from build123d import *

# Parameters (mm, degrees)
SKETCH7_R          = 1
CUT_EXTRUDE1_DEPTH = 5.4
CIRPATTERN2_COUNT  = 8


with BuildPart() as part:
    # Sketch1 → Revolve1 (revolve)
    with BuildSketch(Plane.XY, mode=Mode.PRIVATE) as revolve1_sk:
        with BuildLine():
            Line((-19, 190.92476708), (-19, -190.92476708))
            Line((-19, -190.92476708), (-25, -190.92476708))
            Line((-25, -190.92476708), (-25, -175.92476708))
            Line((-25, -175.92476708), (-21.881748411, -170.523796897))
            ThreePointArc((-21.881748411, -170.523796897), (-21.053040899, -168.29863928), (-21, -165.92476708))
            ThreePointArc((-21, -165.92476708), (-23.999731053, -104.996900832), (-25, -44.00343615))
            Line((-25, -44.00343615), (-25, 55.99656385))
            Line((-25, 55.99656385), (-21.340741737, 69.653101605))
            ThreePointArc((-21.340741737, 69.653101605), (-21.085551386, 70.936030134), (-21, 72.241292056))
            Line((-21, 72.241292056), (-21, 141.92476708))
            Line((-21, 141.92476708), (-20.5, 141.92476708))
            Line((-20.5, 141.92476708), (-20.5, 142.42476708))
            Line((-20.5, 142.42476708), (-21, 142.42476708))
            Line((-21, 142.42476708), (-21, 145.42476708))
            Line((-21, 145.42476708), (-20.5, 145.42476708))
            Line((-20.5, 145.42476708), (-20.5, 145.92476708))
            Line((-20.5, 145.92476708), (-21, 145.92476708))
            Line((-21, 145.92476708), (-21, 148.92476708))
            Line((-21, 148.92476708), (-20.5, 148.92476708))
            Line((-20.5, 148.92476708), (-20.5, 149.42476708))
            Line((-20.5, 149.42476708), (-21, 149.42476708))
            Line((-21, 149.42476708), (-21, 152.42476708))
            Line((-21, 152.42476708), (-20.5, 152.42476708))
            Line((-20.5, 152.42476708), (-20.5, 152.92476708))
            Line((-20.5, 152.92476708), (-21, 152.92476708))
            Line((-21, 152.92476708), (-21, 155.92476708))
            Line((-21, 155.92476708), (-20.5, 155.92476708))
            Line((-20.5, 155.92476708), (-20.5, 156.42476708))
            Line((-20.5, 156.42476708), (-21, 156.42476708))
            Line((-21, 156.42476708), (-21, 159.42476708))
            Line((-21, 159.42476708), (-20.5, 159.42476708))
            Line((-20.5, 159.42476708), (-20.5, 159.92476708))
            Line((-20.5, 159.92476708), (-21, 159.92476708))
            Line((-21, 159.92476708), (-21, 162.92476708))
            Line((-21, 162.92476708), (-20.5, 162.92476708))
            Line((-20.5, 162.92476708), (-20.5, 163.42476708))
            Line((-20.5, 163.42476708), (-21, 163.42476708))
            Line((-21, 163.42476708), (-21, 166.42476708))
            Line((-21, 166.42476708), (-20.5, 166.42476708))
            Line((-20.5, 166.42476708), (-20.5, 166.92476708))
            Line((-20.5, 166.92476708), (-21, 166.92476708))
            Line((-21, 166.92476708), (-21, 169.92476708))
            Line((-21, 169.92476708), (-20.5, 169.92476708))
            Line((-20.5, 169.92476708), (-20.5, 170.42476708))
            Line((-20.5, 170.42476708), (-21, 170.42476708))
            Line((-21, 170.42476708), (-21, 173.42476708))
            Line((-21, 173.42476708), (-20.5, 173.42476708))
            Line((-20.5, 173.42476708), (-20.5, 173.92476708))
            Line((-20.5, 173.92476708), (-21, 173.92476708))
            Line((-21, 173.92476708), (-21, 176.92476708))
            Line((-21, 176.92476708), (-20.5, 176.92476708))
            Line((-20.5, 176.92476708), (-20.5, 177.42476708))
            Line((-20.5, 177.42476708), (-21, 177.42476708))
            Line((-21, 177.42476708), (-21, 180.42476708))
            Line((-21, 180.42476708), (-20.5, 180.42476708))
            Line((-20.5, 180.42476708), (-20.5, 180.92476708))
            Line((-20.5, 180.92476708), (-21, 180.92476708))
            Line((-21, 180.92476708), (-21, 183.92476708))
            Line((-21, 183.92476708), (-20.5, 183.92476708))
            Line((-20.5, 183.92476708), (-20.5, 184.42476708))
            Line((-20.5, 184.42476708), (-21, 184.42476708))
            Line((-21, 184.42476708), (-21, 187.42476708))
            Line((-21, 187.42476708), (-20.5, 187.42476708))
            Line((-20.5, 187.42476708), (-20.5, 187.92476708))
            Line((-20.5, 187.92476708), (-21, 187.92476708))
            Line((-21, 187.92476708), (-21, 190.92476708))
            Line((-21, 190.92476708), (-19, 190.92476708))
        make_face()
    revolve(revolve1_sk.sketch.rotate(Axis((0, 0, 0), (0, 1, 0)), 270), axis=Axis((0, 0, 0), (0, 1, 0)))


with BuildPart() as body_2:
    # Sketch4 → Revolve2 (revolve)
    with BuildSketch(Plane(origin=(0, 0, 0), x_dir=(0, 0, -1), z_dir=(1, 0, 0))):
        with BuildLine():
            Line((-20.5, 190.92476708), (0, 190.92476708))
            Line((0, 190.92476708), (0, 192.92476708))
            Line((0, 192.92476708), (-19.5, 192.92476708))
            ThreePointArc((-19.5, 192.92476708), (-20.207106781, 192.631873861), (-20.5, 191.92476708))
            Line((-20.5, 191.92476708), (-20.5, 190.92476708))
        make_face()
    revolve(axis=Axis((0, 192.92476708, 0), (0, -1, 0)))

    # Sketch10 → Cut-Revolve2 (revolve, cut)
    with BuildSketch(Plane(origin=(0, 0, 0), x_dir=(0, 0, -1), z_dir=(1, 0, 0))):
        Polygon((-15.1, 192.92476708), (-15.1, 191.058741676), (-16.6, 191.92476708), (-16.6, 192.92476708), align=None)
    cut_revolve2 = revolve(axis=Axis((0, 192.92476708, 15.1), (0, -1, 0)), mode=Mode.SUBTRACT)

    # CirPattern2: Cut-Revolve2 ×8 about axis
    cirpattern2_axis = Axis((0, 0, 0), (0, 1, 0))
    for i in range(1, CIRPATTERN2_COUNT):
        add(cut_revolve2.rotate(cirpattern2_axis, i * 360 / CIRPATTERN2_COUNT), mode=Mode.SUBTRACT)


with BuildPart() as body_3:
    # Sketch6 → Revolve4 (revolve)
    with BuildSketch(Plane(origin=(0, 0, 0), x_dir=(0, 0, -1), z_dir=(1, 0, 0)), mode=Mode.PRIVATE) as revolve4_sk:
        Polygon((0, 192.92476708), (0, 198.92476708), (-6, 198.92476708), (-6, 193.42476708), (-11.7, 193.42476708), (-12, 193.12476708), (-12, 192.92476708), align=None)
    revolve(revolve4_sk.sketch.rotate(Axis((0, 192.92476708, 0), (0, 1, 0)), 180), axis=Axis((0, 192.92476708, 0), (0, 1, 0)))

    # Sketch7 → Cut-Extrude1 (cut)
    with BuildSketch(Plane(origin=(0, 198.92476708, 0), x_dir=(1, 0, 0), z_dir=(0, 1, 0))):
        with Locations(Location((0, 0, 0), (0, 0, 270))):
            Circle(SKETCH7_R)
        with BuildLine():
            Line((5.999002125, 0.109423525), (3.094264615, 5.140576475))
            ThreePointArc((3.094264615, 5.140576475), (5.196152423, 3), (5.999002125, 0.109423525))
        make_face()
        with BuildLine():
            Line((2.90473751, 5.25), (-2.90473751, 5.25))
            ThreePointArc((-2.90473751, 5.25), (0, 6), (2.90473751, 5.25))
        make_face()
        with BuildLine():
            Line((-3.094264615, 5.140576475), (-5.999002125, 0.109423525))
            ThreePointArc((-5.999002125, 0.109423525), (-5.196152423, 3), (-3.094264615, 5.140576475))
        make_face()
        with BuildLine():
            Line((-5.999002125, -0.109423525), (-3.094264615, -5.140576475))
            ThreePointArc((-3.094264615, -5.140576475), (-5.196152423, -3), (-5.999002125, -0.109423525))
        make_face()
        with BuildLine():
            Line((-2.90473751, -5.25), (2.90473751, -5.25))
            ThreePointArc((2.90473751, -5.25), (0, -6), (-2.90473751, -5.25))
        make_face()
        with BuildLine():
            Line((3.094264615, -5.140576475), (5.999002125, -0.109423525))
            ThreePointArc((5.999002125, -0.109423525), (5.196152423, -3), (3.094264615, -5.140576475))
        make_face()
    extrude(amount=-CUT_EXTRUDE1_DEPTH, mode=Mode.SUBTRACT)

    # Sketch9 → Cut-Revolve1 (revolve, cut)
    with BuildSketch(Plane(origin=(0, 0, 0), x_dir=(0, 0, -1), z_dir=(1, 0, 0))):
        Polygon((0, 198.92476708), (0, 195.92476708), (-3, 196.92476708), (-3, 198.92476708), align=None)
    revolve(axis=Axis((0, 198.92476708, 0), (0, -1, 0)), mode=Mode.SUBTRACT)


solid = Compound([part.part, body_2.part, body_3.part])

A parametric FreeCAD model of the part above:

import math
import FreeCAD as App
import Part
import Sketcher
Q = App.Units.Quantity


def add_polygon(sketch, points):
    """Adds a closed chain of lines whose ends are joined by coincident constraints."""
    first, n = sketch.GeometryCount, len(points)
    for a, b in zip(points, points[1:] + points[:1]):
        sketch.addGeometry(Part.LineSegment(App.Vector(*a, 0), App.Vector(*b, 0)), False)
    for i in range(n):
        sketch.addConstraint(Sketcher.Constraint("Coincident", first + i, 2, first + (i + 1) % n, 1))

doc = App.newDocument("Part")
body = doc.addObject("PartDesign::Body", "Body")

sketch1 = body.newObject("Sketcher::SketchObject", "Sketch")
sketch1.AttachmentSupport = (doc.getObject("XY_Plane"), [""])
sketch1.MapMode = "FlatFace"
sketch1.addGeometry([
    Part.LineSegment(App.Vector(-19, -190.9, 0), App.Vector(-19, 190.9, 0)),
    Part.LineSegment(App.Vector(-19, 190.9, 0), App.Vector(-21, 190.9, 0)),
    Part.LineSegment(App.Vector(-21, 190.9, 0), App.Vector(-21, 187.9, 0)),
    Part.LineSegment(App.Vector(-21, 187.9, 0), App.Vector(-20.5, 187.9, 0)),
    Part.LineSegment(App.Vector(-20.5, 187.9, 0), App.Vector(-20.5, 187.4, 0)),
    Part.LineSegment(App.Vector(-20.5, 187.4, 0), App.Vector(-21, 187.4, 0)),
    Part.LineSegment(App.Vector(-21, 187.4, 0), App.Vector(-21, 184.4, 0)),
    Part.LineSegment(App.Vector(-21, 184.4, 0), App.Vector(-20.5, 184.4, 0)),
    Part.LineSegment(App.Vector(-20.5, 184.4, 0), App.Vector(-20.5, 183.9, 0)),
    Part.LineSegment(App.Vector(-20.5, 183.9, 0), App.Vector(-21, 183.9, 0)),
    Part.LineSegment(App.Vector(-21, 183.9, 0), App.Vector(-21, 180.9, 0)),
    Part.LineSegment(App.Vector(-21, 180.9, 0), App.Vector(-20.5, 180.9, 0)),
    Part.LineSegment(App.Vector(-20.5, 180.9, 0), App.Vector(-20.5, 180.4, 0)),
    Part.LineSegment(App.Vector(-20.5, 180.4, 0), App.Vector(-21, 180.4, 0)),
    Part.LineSegment(App.Vector(-21, 180.4, 0), App.Vector(-21, 177.4, 0)),
    Part.LineSegment(App.Vector(-21, 177.4, 0), App.Vector(-20.5, 177.4, 0)),
    Part.LineSegment(App.Vector(-20.5, 177.4, 0), App.Vector(-20.5, 176.9, 0)),
    Part.LineSegment(App.Vector(-20.5, 176.9, 0), App.Vector(-21, 176.9, 0)),
    Part.LineSegment(App.Vector(-21, 176.9, 0), App.Vector(-21, 173.9, 0)),
    Part.LineSegment(App.Vector(-21, 173.9, 0), App.Vector(-20.5, 173.9, 0)),
    Part.LineSegment(App.Vector(-20.5, 173.9, 0), App.Vector(-20.5, 173.4, 0)),
    Part.LineSegment(App.Vector(-20.5, 173.4, 0), App.Vector(-21, 173.4, 0)),
    Part.LineSegment(App.Vector(-21, 173.4, 0), App.Vector(-21, 170.4, 0)),
    Part.LineSegment(App.Vector(-21, 170.4, 0), App.Vector(-20.5, 170.4, 0)),
    Part.LineSegment(App.Vector(-20.5, 170.4, 0), App.Vector(-20.5, 169.9, 0)),
    Part.LineSegment(App.Vector(-20.5, 169.9, 0), App.Vector(-21, 169.9, 0)),
    Part.LineSegment(App.Vector(-21, 169.9, 0), App.Vector(-21, 166.9, 0)),
    Part.LineSegment(App.Vector(-21, 166.9, 0), App.Vector(-20.5, 166.9, 0)),
    Part.LineSegment(App.Vector(-20.5, 166.9, 0), App.Vector(-20.5, 166.4, 0)),
    Part.LineSegment(App.Vector(-20.5, 166.4, 0), App.Vector(-21, 166.4, 0)),
    Part.LineSegment(App.Vector(-21, 166.4, 0), App.Vector(-21, 163.4, 0)),
    Part.LineSegment(App.Vector(-21, 163.4, 0), App.Vector(-20.5, 163.4, 0)),
    Part.LineSegment(App.Vector(-20.5, 163.4, 0), App.Vector(-20.5, 162.9, 0)),
    Part.LineSegment(App.Vector(-20.5, 162.9, 0), App.Vector(-21, 162.9, 0)),
    Part.LineSegment(App.Vector(-21, 162.9, 0), App.Vector(-21, 159.9, 0)),
    Part.LineSegment(App.Vector(-21, 159.9, 0), App.Vector(-20.5, 159.9, 0)),
    Part.LineSegment(App.Vector(-20.5, 159.9, 0), App.Vector(-20.5, 159.4, 0)),
    Part.LineSegment(App.Vector(-20.5, 159.4, 0), App.Vector(-21, 159.4, 0)),
    Part.LineSegment(App.Vector(-21, 159.4, 0), App.Vector(-21, 156.4, 0)),
    Part.LineSegment(App.Vector(-21, 156.4, 0), App.Vector(-20.5, 156.4, 0)),
    Part.LineSegment(App.Vector(-20.5, 156.4, 0), App.Vector(-20.5, 155.9, 0)),
    Part.LineSegment(App.Vector(-20.5, 155.9, 0), App.Vector(-21, 155.9, 0)),
    Part.LineSegment(App.Vector(-21, 155.9, 0), App.Vector(-21, 152.9, 0)),
    Part.LineSegment(App.Vector(-21, 152.9, 0), App.Vector(-20.5, 152.9, 0)),
    Part.LineSegment(App.Vector(-20.5, 152.9, 0), App.Vector(-20.5, 152.4, 0)),
    Part.LineSegment(App.Vector(-20.5, 152.4, 0), App.Vector(-21, 152.4, 0)),
    Part.LineSegment(App.Vector(-21, 152.4, 0), App.Vector(-21, 149.4, 0)),
    Part.LineSegment(App.Vector(-21, 149.4, 0), App.Vector(-20.5, 149.4, 0)),
    Part.LineSegment(App.Vector(-20.5, 149.4, 0), App.Vector(-20.5, 148.9, 0)),
    Part.LineSegment(App.Vector(-20.5, 148.9, 0), App.Vector(-21, 148.9, 0)),
    Part.LineSegment(App.Vector(-21, 148.9, 0), App.Vector(-21, 145.9, 0)),
    Part.LineSegment(App.Vector(-21, 145.9, 0), App.Vector(-20.5, 145.9, 0)),
    Part.LineSegment(App.Vector(-20.5, 145.9, 0), App.Vector(-20.5, 145.4, 0)),
    Part.LineSegment(App.Vector(-20.5, 145.4, 0), App.Vector(-21, 145.4, 0)),
    Part.LineSegment(App.Vector(-21, 145.4, 0), App.Vector(-21, 142.4, 0)),
    Part.LineSegment(App.Vector(-21, 142.4, 0), App.Vector(-20.5, 142.4, 0)),
    Part.LineSegment(App.Vector(-20.5, 142.4, 0), App.Vector(-20.5, 141.9, 0)),
    Part.LineSegment(App.Vector(-20.5, 141.9, 0), App.Vector(-21, 141.9, 0)),
    Part.LineSegment(App.Vector(-21, 141.9, 0), App.Vector(-21, 72.2, 0)),
    Part.ArcOfCircle(Part.Circle(App.Vector(-31, 72.2, 0), App.Vector(0, 0, 1), 10), math.radians(-15), math.radians(0)),
    Part.LineSegment(App.Vector(-21.3, 69.7, 0), App.Vector(-25, 56, 0)),
    Part.LineSegment(App.Vector(-25, 56, 0), App.Vector(-25, -44, 0)),
    Part.ArcOfCircle(Part.Circle(App.Vector(1835.1, -44, 0), App.Vector(0, 0, 1), 1860.1), math.radians(180), math.radians(183.76)),
    Part.ArcOfCircle(Part.Circle(App.Vector(-28.1, -167, 0), App.Vector(0, 0, 1), 7.1), math.radians(-30), math.radians(8)),
    Part.LineSegment(App.Vector(-21.9, -170.5, 0), App.Vector(-25, -175.9, 0)),
    Part.LineSegment(App.Vector(-25, -175.9, 0), App.Vector(-25, -190.9, 0)),
    Part.LineSegment(App.Vector(-25, -190.9, 0), App.Vector(-19, -190.9, 0)),
], False)
sketch1.addConstraint([
    Sketcher.Constraint("Coincident", 0, 2, 1, 1),
    Sketcher.Constraint("Coincident", 1, 2, 2, 1),
    Sketcher.Constraint("Coincident", 2, 2, 3, 1),
    Sketcher.Constraint("Coincident", 3, 2, 4, 1),
    Sketcher.Constraint("Coincident", 4, 2, 5, 1),
    Sketcher.Constraint("Coincident", 5, 2, 6, 1),
    Sketcher.Constraint("Coincident", 6, 2, 7, 1),
    Sketcher.Constraint("Coincident", 7, 2, 8, 1),
    Sketcher.Constraint("Coincident", 8, 2, 9, 1),
    Sketcher.Constraint("Coincident", 9, 2, 10, 1),
    Sketcher.Constraint("Coincident", 10, 2, 11, 1),
    Sketcher.Constraint("Coincident", 11, 2, 12, 1),
    Sketcher.Constraint("Coincident", 12, 2, 13, 1),
    Sketcher.Constraint("Coincident", 13, 2, 14, 1),
    Sketcher.Constraint("Coincident", 14, 2, 15, 1),
    Sketcher.Constraint("Coincident", 15, 2, 16, 1),
    Sketcher.Constraint("Coincident", 16, 2, 17, 1),
    Sketcher.Constraint("Coincident", 17, 2, 18, 1),
    Sketcher.Constraint("Coincident", 18, 2, 19, 1),
    Sketcher.Constraint("Coincident", 19, 2, 20, 1),
    Sketcher.Constraint("Coincident", 20, 2, 21, 1),
    Sketcher.Constraint("Coincident", 21, 2, 22, 1),
    Sketcher.Constraint("Coincident", 22, 2, 23, 1),
    Sketcher.Constraint("Coincident", 23, 2, 24, 1),
    Sketcher.Constraint("Coincident", 24, 2, 25, 1),
    Sketcher.Constraint("Coincident", 25, 2, 26, 1),
    Sketcher.Constraint("Coincident", 26, 2, 27, 1),
    Sketcher.Constraint("Coincident", 27, 2, 28, 1),
    Sketcher.Constraint("Coincident", 28, 2, 29, 1),
    Sketcher.Constraint("Coincident", 29, 2, 30, 1),
    Sketcher.Constraint("Coincident", 30, 2, 31, 1),
    Sketcher.Constraint("Coincident", 31, 2, 32, 1),
    Sketcher.Constraint("Coincident", 32, 2, 33, 1),
    Sketcher.Constraint("Coincident", 33, 2, 34, 1),
    Sketcher.Constraint("Coincident", 34, 2, 35, 1),
    Sketcher.Constraint("Coincident", 35, 2, 36, 1),
    Sketcher.Constraint("Coincident", 36, 2, 37, 1),
    Sketcher.Constraint("Coincident", 37, 2, 38, 1),
    Sketcher.Constraint("Coincident", 38, 2, 39, 1),
    Sketcher.Constraint("Coincident", 39, 2, 40, 1),
    Sketcher.Constraint("Coincident", 40, 2, 41, 1),
    Sketcher.Constraint("Coincident", 41, 2, 42, 1),
    Sketcher.Constraint("Coincident", 42, 2, 43, 1),
    Sketcher.Constraint("Coincident", 43, 2, 44, 1),
    Sketcher.Constraint("Coincident", 44, 2, 45, 1),
    Sketcher.Constraint("Coincident", 45, 2, 46, 1),
    Sketcher.Constraint("Coincident", 46, 2, 47, 1),
    Sketcher.Constraint("Coincident", 47, 2, 48, 1),
    Sketcher.Constraint("Coincident", 48, 2, 49, 1),
    Sketcher.Constraint("Coincident", 49, 2, 50, 1),
    Sketcher.Constraint("Coincident", 50, 2, 51, 1),
    Sketcher.Constraint("Coincident", 51, 2, 52, 1),
    Sketcher.Constraint("Coincident", 52, 2, 53, 1),
    Sketcher.Constraint("Coincident", 53, 2, 54, 1),
    Sketcher.Constraint("Coincident", 54, 2, 55, 1),
    Sketcher.Constraint("Coincident", 55, 2, 56, 1),
    Sketcher.Constraint("Coincident", 56, 2, 57, 1),
    Sketcher.Constraint("Coincident", 57, 2, 58, 1),
    Sketcher.Constraint("Tangent", 58, 2, 59, 2),
    Sketcher.Constraint("Tangent", 59, 1, 60, 1),
    Sketcher.Constraint("Coincident", 60, 2, 61, 1),
    Sketcher.Constraint("Tangent", 61, 2, 62, 1),
    Sketcher.Constraint("Coincident", 62, 2, 63, 2),
    Sketcher.Constraint("Tangent", 63, 1, 64, 1),
    Sketcher.Constraint("Coincident", 64, 2, 65, 1),
    Sketcher.Constraint("Coincident", 65, 2, 66, 1),
    Sketcher.Constraint("Coincident", 66, 2, 0, 1),
    Sketcher.Constraint("Vertical", 0),
    Sketcher.Constraint("Horizontal", 1),
    Sketcher.Constraint("Vertical", 2),
    Sketcher.Constraint("Horizontal", 3),
    Sketcher.Constraint("Vertical", 4),
    Sketcher.Constraint("Horizontal", 5),
    Sketcher.Constraint("Vertical", 6),
    Sketcher.Constraint("Horizontal", 7),
    Sketcher.Constraint("Vertical", 8),
    Sketcher.Constraint("Horizontal", 9),
    Sketcher.Constraint("Vertical", 10),
    Sketcher.Constraint("Horizontal", 11),
    Sketcher.Constraint("Vertical", 12),
    Sketcher.Constraint("Horizontal", 13),
    Sketcher.Constraint("Vertical", 14),
    Sketcher.Constraint("Horizontal", 15),
    Sketcher.Constraint("Vertical", 16),
    Sketcher.Constraint("Horizontal", 17),
    Sketcher.Constraint("Vertical", 18),
    Sketcher.Constraint("Horizontal", 19),
    Sketcher.Constraint("Vertical", 20),
    Sketcher.Constraint("Horizontal", 21),
    Sketcher.Constraint("Vertical", 22),
    Sketcher.Constraint("Horizontal", 23),
    Sketcher.Constraint("Vertical", 24),
    Sketcher.Constraint("Horizontal", 25),
    Sketcher.Constraint("Vertical", 26),
    Sketcher.Constraint("Horizontal", 27),
    Sketcher.Constraint("Vertical", 28),
    Sketcher.Constraint("Horizontal", 29),
    Sketcher.Constraint("Vertical", 30),
    Sketcher.Constraint("Horizontal", 31),
    Sketcher.Constraint("Vertical", 32),
    Sketcher.Constraint("Horizontal", 33),
    Sketcher.Constraint("Vertical", 34),
    Sketcher.Constraint("Horizontal", 35),
    Sketcher.Constraint("Vertical", 36),
    Sketcher.Constraint("Horizontal", 37),
    Sketcher.Constraint("Vertical", 38),
    Sketcher.Constraint("Horizontal", 39),
    Sketcher.Constraint("Vertical", 40),
    Sketcher.Constraint("Horizontal", 41),
    Sketcher.Constraint("Vertical", 42),
    Sketcher.Constraint("Horizontal", 43),
    Sketcher.Constraint("Vertical", 44),
    Sketcher.Constraint("Horizontal", 45),
    Sketcher.Constraint("Vertical", 46),
    Sketcher.Constraint("Horizontal", 47),
    Sketcher.Constraint("Vertical", 48),
    Sketcher.Constraint("Horizontal", 49),
    Sketcher.Constraint("Vertical", 50),
    Sketcher.Constraint("Horizontal", 51),
    Sketcher.Constraint("Vertical", 52),
    Sketcher.Constraint("Horizontal", 53),
    Sketcher.Constraint("Vertical", 54),
    Sketcher.Constraint("Horizontal", 55),
    Sketcher.Constraint("Vertical", 56),
    Sketcher.Constraint("Horizontal", 57),
    Sketcher.Constraint("Vertical", 58),
    Sketcher.Constraint("Vertical", 61),
    Sketcher.Constraint("Vertical", 65),
    Sketcher.Constraint("Horizontal", 66),
    Sketcher.Constraint("Vertical", 2, 2, 5, 2),
    Sketcher.Constraint("Vertical", 4, 2, 7, 2),
    Sketcher.Constraint("Vertical", 6, 2, 9, 2),
    Sketcher.Constraint("Vertical", 8, 2, 11, 2),
    Sketcher.Constraint("Vertical", 10, 2, 13, 2),
    Sketcher.Constraint("Vertical", 12, 2, 15, 2),
    Sketcher.Constraint("Vertical", 14, 2, 17, 2),
    Sketcher.Constraint("Vertical", 16, 2, 19, 2),
    Sketcher.Constraint("Vertical", 18, 2, 21, 2),
    Sketcher.Constraint("Vertical", 20, 2, 23, 2),
    Sketcher.Constraint("Vertical", 22, 2, 25, 2),
    Sketcher.Constraint("Vertical", 24, 2, 27, 2),
    Sketcher.Constraint("Vertical", 26, 2, 29, 2),
    Sketcher.Constraint("Vertical", 28, 2, 31, 2),
    Sketcher.Constraint("Vertical", 30, 2, 33, 2),
    Sketcher.Constraint("Vertical", 32, 2, 35, 2),
    Sketcher.Constraint("Vertical", 34, 2, 37, 2),
    Sketcher.Constraint("Vertical", 36, 2, 39, 2),
    Sketcher.Constraint("Vertical", 38, 2, 41, 2),
    Sketcher.Constraint("Vertical", 40, 2, 43, 2),
    Sketcher.Constraint("Vertical", 42, 2, 45, 2),
    Sketcher.Constraint("Vertical", 44, 2, 47, 2),
    Sketcher.Constraint("Vertical", 46, 2, 49, 2),
    Sketcher.Constraint("Vertical", 48, 2, 51, 2),
    Sketcher.Constraint("Vertical", 50, 2, 53, 2),
    Sketcher.Constraint("Vertical", 52, 2, 55, 2),
    Sketcher.Constraint("Vertical", 54, 2, 57, 2),
    Sketcher.Constraint("Vertical", 58, 2, 62, 2),
    Sketcher.Constraint("Vertical", 61, 2, 64, 2),
    Sketcher.Constraint("Equal", 57, 4),
    Sketcher.Constraint("Equal", 2, 6),
    Sketcher.Constraint("Equal", 4, 8),
    Sketcher.Constraint("Equal", 6, 10),
    Sketcher.Constraint("Equal", 8, 12),
    Sketcher.Constraint("Equal", 10, 14),
    Sketcher.Constraint("Equal", 12, 16),
    Sketcher.Constraint("Equal", 14, 18),
    Sketcher.Constraint("Equal", 16, 20),
    Sketcher.Constraint("Equal", 18, 22),
    Sketcher.Constraint("Equal", 20, 24),
    Sketcher.Constraint("Equal", 22, 26),
    Sketcher.Constraint("Equal", 24, 28),
    Sketcher.Constraint("Equal", 26, 30),
    Sketcher.Constraint("Equal", 28, 32),
    Sketcher.Constraint("Equal", 30, 34),
    Sketcher.Constraint("Equal", 32, 36),
    Sketcher.Constraint("Equal", 34, 38),
    Sketcher.Constraint("Equal", 36, 40),
    Sketcher.Constraint("Equal", 38, 42),
    Sketcher.Constraint("Equal", 40, 44),
    Sketcher.Constraint("Equal", 42, 46),
    Sketcher.Constraint("Equal", 44, 48),
    Sketcher.Constraint("Equal", 46, 50),
    Sketcher.Constraint("Equal", 48, 52),
    Sketcher.Constraint("Equal", 50, 54),
    Sketcher.Constraint("Equal", 52, 56),
    Sketcher.Constraint("Radius", 59, Q("10 mm")),
    Sketcher.Constraint("DistanceX", 1, 2, 1, 1, Q("2 mm")),
    Sketcher.Constraint("DistanceX", 66, 1, 66, 2, Q("6 mm")),
    Sketcher.Constraint("DistanceY", 2, 2, 2, 1, Q("3 mm")),
    Sketcher.Constraint("DistanceY", 61, 2, 61, 1, Q("100 mm")),
    Sketcher.Constraint("DistanceY", 65, 2, 65, 1, Q("15 mm")),
    Sketcher.Constraint("Angle", 60, Q("-105 deg")),
    Sketcher.Constraint("Angle", 64, Q("-120 deg")),
    Sketcher.Constraint("DistanceX", 3, 1, 3, 2, Q("0.5 mm")),
    Sketcher.Constraint("DistanceX", 59, 3, -1, 1, Q("31 mm")),
    Sketcher.Constraint("Radius", 62, Q("1860.101367 mm")),
    Sketcher.Constraint("Radius", 63, Q("7.138674 mm")),
    Sketcher.Constraint("DistanceY", -1, 1, 59, 1, Q("69.653102 mm")),
    Sketcher.Constraint("DistanceY", 0, 1, 0, 2, Q("381.849534 mm")),
    Sketcher.Constraint("DistanceY", 58, 2, 58, 1, Q("69.683475 mm")),
])
revolution = body.newObject("PartDesign::Revolution", "Revolution")
revolution.Profile = sketch1
revolution.ReferenceAxis = (sketch1, ["V_Axis"])
revolution.Angle = 360
body2 = doc.addObject("PartDesign::Body", "Body001")

sketch2 = body2.newObject("Sketcher::SketchObject", "Sketch001")
sketch2.AttachmentSupport = (doc.getObject("YZ_Plane001"), [""])
sketch2.MapMode = "FlatFace"
sketch2.addGeometry([
    Part.LineSegment(App.Vector(190.9, 20.5, 0), App.Vector(190.9, 0, 0)),
    Part.LineSegment(App.Vector(190.9, 0, 0), App.Vector(192.9, 0, 0)),
    Part.LineSegment(App.Vector(192.9, 0, 0), App.Vector(192.9, 19.5, 0)),
    Part.ArcOfCircle(Part.Circle(App.Vector(191.9, 19.5, 0), App.Vector(0, 0, 1), 1), math.radians(0), math.radians(90)),
    Part.LineSegment(App.Vector(191.9, 20.5, 0), App.Vector(190.9, 20.5, 0)),
], False)
sketch2.addConstraint([
    Sketcher.Constraint("Coincident", 0, 2, 1, 1),
    Sketcher.Constraint("Coincident", 1, 2, 2, 1),
    Sketcher.Constraint("Tangent", 2, 2, 3, 1),
    Sketcher.Constraint("Tangent", 3, 2, 4, 1),
    Sketcher.Constraint("Coincident", 4, 2, 0, 1),
    Sketcher.Constraint("Vertical", 0),
    Sketcher.Constraint("Horizontal", 1),
    Sketcher.Constraint("Vertical", 2),
    Sketcher.Constraint("Horizontal", 4),
    Sketcher.Constraint("PointOnObject", 0, 2, -1),
    Sketcher.Constraint("Radius", 3, Q("1 mm")),
    Sketcher.Constraint("DistanceX", 1, 1, 1, 2, Q("2 mm")),
    Sketcher.Constraint("DistanceY", 0, 2, 0, 1, Q("20.5 mm")),
    Sketcher.Constraint("DistanceX", -1, 1, 3, 3, Q("191.924767 mm")),
])
revolution2 = body2.newObject("PartDesign::Revolution", "Revolution001")
revolution2.Profile = sketch2
revolution2.ReferenceAxis = (sketch2, ["H_Axis"])
revolution2.Angle = 360

sketch3 = body2.newObject("Sketcher::SketchObject", "Sketch002")
sketch3.AttachmentSupport = (doc.getObject("YZ_Plane001"), [""])
sketch3.MapMode = "FlatFace"
add_polygon(sketch3, [(191.1, 15.1), (192.9, 15.1), (192.9, 16.6), (191.9, 16.6)])
sketch3.addGeometry(Part.LineSegment(App.Vector(192.9, 15.1, 0), App.Vector(191.1, 15.1, 0)), True)
sketch3.addConstraint([
    Sketcher.Constraint("Horizontal", 0),
    Sketcher.Constraint("Vertical", 1),
    Sketcher.Constraint("Horizontal", 2),
    Sketcher.Constraint("Horizontal", 4),
    Sketcher.Constraint("Coincident", 4, 1, 0, 2),
    Sketcher.Constraint("Equal", 0, 4),
    Sketcher.Constraint("DistanceX", 2, 2, 2, 1, Q("1 mm")),
    Sketcher.Constraint("Angle", 3, Q("-120 deg")),
    Sketcher.Constraint("DistanceY", 1, 1, 1, 2, Q("1.5 mm")),
    Sketcher.Constraint("DistanceY", -1, 1, 0, 2, Q("15.1 mm")),
    Sketcher.Constraint("DistanceX", -1, 1, 3, 2, Q("191.058742 mm")),
])
groove = body2.newObject("PartDesign::Groove", "Groove")
groove.Profile = sketch3
groove.ReferenceAxis = (sketch3, ["Axis0"])
groove.Angle = 360
doc.recompute()

polarpattern = body2.newObject("PartDesign::PolarPattern", "PolarPattern")
polarpattern.Originals = [groove]
polarpattern.Axis = (doc.getObject("Y_Axis001"), [""])
polarpattern.Angle = 360
polarpattern.Occurrences = 8
body2.Tip = polarpattern
body3 = doc.addObject("PartDesign::Body", "Body002")

sketch4 = body3.newObject("Sketcher::SketchObject", "Sketch003")
sketch4.AttachmentSupport = (doc.getObject("YZ_Plane002"), [""])
sketch4.MapMode = "FlatFace"
add_polygon(sketch4, [(192.92, 0), (198.92, 0), (198.92, 6), (193.42, 6), (193.42, 11.7), (193.12, 12), (192.92, 12)])
sketch4.addConstraint([
    Sketcher.Constraint("Horizontal", 0),
    Sketcher.Constraint("Vertical", 1),
    Sketcher.Constraint("Horizontal", 2),
    Sketcher.Constraint("Vertical", 3),
    Sketcher.Constraint("Horizontal", 5),
    Sketcher.Constraint("Vertical", 6),
    Sketcher.Constraint("PointOnObject", 0, 2, -1),
    Sketcher.Constraint("Equal", 0, 1),
    Sketcher.Constraint("DistanceX", 0, 1, 0, 2, Q("6 mm")),
    Sketcher.Constraint("DistanceY", 6, 2, 6, 1, Q("12 mm")),
    Sketcher.Constraint("Angle", 4, Q("135 deg")),
    Sketcher.Constraint("DistanceX", 2, 2, 2, 1, Q("5.5 mm")),
    Sketcher.Constraint("DistanceX", 5, 2, 5, 1, Q("0.2 mm")),
    Sketcher.Constraint("DistanceX", -1, 1, 0, 2, Q("198.924767 mm")),
])
revolution3 = body3.newObject("PartDesign::Revolution", "Revolution002")
revolution3.Profile = sketch4
revolution3.ReferenceAxis = (sketch4, ["H_Axis"])
revolution3.Angle = 360

sketch5 = body3.newObject("Sketcher::SketchObject", "Sketch004")
sketch5.AttachmentSupport = (doc.getObject("XZ_Plane002"), [""])
sketch5.MapMode = "FlatFace"
sketch5.AttachmentOffset = App.Placement(App.Vector(0, 0, -198.924767), App.Rotation())
sketch5.addGeometry([
    Part.Circle(App.Vector(0, 0, 0), App.Vector(0, 0, 1), 1),
    Part.LineSegment(App.Vector(3.1, -5.1, 0), App.Vector(6, -0.1, 0)),
    Part.ArcOfCircle(Part.Circle(App.Vector(0, 0, 0), App.Vector(0, 0, 1), 6), math.radians(-59), math.radians(-1)),
    Part.LineSegment(App.Vector(-2.9, -5.2, 0), App.Vector(2.9, -5.2, 0)),
    Part.ArcOfCircle(Part.Circle(App.Vector(0, 0, 0), App.Vector(0, 0, 1), 6), math.radians(-119), math.radians(-61)),
    Part.LineSegment(App.Vector(-6, -0.1, 0), App.Vector(-3.1, -5.1, 0)),
    Part.ArcOfCircle(Part.Circle(App.Vector(0, 0, 0), App.Vector(0, 0, 1), 6), math.radians(-179), math.radians(-121)),
    Part.LineSegment(App.Vector(-3.1, 5.1, 0), App.Vector(-6, 0.1, 0)),
    Part.ArcOfCircle(Part.Circle(App.Vector(0, 0, 0), App.Vector(0, 0, 1), 6), math.radians(121), math.radians(179)),
    Part.LineSegment(App.Vector(2.9, 5.2, 0), App.Vector(-2.9, 5.2, 0)),
    Part.ArcOfCircle(Part.Circle(App.Vector(0, 0, 0), App.Vector(0, 0, 1), 6), math.radians(61), math.radians(119)),
    Part.LineSegment(App.Vector(6, 0.1, 0), App.Vector(3.1, 5.1, 0)),
    Part.ArcOfCircle(Part.Circle(App.Vector(0, 0, 0), App.Vector(0, 0, 1), 6), math.radians(1), math.radians(59)),
], False)
sketch5.addConstraint([
    Sketcher.Constraint("Coincident", 1, 1, 2, 1),
    Sketcher.Constraint("Coincident", 2, 2, 1, 2),
    Sketcher.Constraint("Coincident", 3, 1, 4, 1),
    Sketcher.Constraint("Coincident", 4, 2, 3, 2),
    Sketcher.Constraint("Coincident", 5, 1, 6, 1),
    Sketcher.Constraint("Coincident", 6, 2, 5, 2),
    Sketcher.Constraint("Coincident", 7, 1, 8, 1),
    Sketcher.Constraint("Coincident", 8, 2, 7, 2),
    Sketcher.Constraint("Coincident", 9, 1, 10, 1),
    Sketcher.Constraint("Coincident", 10, 2, 9, 2),
    Sketcher.Constraint("Coincident", 11, 1, 12, 1),
    Sketcher.Constraint("Coincident", 12, 2, 11, 2),
    Sketcher.Constraint("Horizontal", 3),
    Sketcher.Constraint("Horizontal", 9),
    Sketcher.Constraint("Coincident", 0, 3, -1, 1),
    Sketcher.Constraint("Coincident", 2, 3, -1, 1),
    Sketcher.Constraint("Coincident", 4, 3, -1, 1),
    Sketcher.Constraint("Coincident", 6, 3, -1, 1),
    Sketcher.Constraint("Coincident", 8, 3, -1, 1),
    Sketcher.Constraint("Coincident", 10, 3, -1, 1),
    Sketcher.Constraint("Coincident", 12, 3, -1, 1),
    Sketcher.Constraint("Equal", 2, 4),
    Sketcher.Constraint("Equal", 4, 6),
    Sketcher.Constraint("Equal", 6, 8),
    Sketcher.Constraint("Equal", 8, 10),
    Sketcher.Constraint("Equal", 10, 12),
    Sketcher.Constraint("Parallel", 1, 7),
    Sketcher.Constraint("Parallel", 5, 11),
    Sketcher.Constraint("Horizontal", 2, 2, 5, 1),
    Sketcher.Constraint("Horizontal", 1, 1, 6, 2),
    Sketcher.Constraint("Horizontal", 8, 2, 11, 1),
    Sketcher.Constraint("Vertical", 6, 2, 7, 1),
    Sketcher.Constraint("Vertical", 4, 2, 9, 1),
    Sketcher.Constraint("Diameter", 0, Q("2 mm")),
    Sketcher.Constraint("Radius", 2, Q("6 mm")),
    Sketcher.Constraint("Angle", 1, Q("60 deg")),
    Sketcher.Constraint("DistanceY", 3, 1, -1, 1, Q("5.25 mm")),
    Sketcher.Constraint("DistanceY", 5, 1, 7, 1, Q("5.25 mm")),
])
pocket1 = body3.newObject("PartDesign::Pocket", "Pocket")
pocket1.Profile = sketch5
pocket1.Length = 5.4
pocket1.Reversed = True

sketch6 = body3.newObject("Sketcher::SketchObject", "Sketch005")
sketch6.AttachmentSupport = (doc.getObject("YZ_Plane002"), [""])
sketch6.MapMode = "FlatFace"
add_polygon(sketch6, [(195.9, 0), (198.9, 0), (198.9, 3), (196.9, 3)])
sketch6.addConstraint([
    Sketcher.Constraint("Horizontal", 0),
    Sketcher.Constraint("Vertical", 1),
    Sketcher.Constraint("Horizontal", 2),
    Sketcher.Constraint("PointOnObject", 0, 2, -1),
    Sketcher.Constraint("Equal", 0, 1),
    Sketcher.Constraint("DistanceX", 0, 1, 0, 2, Q("3 mm")),
    Sketcher.Constraint("DistanceX", 2, 2, 2, 1, Q("2 mm")),
    Sketcher.Constraint("DistanceX", -1, 1, 0, 2, Q("198.924767 mm")),
])
groove2 = body3.newObject("PartDesign::Groove", "Groove001")
groove2.Profile = sketch6
groove2.ReferenceAxis = (sketch6, ["H_Axis"])
groove2.Angle = 360

doc.recompute()
